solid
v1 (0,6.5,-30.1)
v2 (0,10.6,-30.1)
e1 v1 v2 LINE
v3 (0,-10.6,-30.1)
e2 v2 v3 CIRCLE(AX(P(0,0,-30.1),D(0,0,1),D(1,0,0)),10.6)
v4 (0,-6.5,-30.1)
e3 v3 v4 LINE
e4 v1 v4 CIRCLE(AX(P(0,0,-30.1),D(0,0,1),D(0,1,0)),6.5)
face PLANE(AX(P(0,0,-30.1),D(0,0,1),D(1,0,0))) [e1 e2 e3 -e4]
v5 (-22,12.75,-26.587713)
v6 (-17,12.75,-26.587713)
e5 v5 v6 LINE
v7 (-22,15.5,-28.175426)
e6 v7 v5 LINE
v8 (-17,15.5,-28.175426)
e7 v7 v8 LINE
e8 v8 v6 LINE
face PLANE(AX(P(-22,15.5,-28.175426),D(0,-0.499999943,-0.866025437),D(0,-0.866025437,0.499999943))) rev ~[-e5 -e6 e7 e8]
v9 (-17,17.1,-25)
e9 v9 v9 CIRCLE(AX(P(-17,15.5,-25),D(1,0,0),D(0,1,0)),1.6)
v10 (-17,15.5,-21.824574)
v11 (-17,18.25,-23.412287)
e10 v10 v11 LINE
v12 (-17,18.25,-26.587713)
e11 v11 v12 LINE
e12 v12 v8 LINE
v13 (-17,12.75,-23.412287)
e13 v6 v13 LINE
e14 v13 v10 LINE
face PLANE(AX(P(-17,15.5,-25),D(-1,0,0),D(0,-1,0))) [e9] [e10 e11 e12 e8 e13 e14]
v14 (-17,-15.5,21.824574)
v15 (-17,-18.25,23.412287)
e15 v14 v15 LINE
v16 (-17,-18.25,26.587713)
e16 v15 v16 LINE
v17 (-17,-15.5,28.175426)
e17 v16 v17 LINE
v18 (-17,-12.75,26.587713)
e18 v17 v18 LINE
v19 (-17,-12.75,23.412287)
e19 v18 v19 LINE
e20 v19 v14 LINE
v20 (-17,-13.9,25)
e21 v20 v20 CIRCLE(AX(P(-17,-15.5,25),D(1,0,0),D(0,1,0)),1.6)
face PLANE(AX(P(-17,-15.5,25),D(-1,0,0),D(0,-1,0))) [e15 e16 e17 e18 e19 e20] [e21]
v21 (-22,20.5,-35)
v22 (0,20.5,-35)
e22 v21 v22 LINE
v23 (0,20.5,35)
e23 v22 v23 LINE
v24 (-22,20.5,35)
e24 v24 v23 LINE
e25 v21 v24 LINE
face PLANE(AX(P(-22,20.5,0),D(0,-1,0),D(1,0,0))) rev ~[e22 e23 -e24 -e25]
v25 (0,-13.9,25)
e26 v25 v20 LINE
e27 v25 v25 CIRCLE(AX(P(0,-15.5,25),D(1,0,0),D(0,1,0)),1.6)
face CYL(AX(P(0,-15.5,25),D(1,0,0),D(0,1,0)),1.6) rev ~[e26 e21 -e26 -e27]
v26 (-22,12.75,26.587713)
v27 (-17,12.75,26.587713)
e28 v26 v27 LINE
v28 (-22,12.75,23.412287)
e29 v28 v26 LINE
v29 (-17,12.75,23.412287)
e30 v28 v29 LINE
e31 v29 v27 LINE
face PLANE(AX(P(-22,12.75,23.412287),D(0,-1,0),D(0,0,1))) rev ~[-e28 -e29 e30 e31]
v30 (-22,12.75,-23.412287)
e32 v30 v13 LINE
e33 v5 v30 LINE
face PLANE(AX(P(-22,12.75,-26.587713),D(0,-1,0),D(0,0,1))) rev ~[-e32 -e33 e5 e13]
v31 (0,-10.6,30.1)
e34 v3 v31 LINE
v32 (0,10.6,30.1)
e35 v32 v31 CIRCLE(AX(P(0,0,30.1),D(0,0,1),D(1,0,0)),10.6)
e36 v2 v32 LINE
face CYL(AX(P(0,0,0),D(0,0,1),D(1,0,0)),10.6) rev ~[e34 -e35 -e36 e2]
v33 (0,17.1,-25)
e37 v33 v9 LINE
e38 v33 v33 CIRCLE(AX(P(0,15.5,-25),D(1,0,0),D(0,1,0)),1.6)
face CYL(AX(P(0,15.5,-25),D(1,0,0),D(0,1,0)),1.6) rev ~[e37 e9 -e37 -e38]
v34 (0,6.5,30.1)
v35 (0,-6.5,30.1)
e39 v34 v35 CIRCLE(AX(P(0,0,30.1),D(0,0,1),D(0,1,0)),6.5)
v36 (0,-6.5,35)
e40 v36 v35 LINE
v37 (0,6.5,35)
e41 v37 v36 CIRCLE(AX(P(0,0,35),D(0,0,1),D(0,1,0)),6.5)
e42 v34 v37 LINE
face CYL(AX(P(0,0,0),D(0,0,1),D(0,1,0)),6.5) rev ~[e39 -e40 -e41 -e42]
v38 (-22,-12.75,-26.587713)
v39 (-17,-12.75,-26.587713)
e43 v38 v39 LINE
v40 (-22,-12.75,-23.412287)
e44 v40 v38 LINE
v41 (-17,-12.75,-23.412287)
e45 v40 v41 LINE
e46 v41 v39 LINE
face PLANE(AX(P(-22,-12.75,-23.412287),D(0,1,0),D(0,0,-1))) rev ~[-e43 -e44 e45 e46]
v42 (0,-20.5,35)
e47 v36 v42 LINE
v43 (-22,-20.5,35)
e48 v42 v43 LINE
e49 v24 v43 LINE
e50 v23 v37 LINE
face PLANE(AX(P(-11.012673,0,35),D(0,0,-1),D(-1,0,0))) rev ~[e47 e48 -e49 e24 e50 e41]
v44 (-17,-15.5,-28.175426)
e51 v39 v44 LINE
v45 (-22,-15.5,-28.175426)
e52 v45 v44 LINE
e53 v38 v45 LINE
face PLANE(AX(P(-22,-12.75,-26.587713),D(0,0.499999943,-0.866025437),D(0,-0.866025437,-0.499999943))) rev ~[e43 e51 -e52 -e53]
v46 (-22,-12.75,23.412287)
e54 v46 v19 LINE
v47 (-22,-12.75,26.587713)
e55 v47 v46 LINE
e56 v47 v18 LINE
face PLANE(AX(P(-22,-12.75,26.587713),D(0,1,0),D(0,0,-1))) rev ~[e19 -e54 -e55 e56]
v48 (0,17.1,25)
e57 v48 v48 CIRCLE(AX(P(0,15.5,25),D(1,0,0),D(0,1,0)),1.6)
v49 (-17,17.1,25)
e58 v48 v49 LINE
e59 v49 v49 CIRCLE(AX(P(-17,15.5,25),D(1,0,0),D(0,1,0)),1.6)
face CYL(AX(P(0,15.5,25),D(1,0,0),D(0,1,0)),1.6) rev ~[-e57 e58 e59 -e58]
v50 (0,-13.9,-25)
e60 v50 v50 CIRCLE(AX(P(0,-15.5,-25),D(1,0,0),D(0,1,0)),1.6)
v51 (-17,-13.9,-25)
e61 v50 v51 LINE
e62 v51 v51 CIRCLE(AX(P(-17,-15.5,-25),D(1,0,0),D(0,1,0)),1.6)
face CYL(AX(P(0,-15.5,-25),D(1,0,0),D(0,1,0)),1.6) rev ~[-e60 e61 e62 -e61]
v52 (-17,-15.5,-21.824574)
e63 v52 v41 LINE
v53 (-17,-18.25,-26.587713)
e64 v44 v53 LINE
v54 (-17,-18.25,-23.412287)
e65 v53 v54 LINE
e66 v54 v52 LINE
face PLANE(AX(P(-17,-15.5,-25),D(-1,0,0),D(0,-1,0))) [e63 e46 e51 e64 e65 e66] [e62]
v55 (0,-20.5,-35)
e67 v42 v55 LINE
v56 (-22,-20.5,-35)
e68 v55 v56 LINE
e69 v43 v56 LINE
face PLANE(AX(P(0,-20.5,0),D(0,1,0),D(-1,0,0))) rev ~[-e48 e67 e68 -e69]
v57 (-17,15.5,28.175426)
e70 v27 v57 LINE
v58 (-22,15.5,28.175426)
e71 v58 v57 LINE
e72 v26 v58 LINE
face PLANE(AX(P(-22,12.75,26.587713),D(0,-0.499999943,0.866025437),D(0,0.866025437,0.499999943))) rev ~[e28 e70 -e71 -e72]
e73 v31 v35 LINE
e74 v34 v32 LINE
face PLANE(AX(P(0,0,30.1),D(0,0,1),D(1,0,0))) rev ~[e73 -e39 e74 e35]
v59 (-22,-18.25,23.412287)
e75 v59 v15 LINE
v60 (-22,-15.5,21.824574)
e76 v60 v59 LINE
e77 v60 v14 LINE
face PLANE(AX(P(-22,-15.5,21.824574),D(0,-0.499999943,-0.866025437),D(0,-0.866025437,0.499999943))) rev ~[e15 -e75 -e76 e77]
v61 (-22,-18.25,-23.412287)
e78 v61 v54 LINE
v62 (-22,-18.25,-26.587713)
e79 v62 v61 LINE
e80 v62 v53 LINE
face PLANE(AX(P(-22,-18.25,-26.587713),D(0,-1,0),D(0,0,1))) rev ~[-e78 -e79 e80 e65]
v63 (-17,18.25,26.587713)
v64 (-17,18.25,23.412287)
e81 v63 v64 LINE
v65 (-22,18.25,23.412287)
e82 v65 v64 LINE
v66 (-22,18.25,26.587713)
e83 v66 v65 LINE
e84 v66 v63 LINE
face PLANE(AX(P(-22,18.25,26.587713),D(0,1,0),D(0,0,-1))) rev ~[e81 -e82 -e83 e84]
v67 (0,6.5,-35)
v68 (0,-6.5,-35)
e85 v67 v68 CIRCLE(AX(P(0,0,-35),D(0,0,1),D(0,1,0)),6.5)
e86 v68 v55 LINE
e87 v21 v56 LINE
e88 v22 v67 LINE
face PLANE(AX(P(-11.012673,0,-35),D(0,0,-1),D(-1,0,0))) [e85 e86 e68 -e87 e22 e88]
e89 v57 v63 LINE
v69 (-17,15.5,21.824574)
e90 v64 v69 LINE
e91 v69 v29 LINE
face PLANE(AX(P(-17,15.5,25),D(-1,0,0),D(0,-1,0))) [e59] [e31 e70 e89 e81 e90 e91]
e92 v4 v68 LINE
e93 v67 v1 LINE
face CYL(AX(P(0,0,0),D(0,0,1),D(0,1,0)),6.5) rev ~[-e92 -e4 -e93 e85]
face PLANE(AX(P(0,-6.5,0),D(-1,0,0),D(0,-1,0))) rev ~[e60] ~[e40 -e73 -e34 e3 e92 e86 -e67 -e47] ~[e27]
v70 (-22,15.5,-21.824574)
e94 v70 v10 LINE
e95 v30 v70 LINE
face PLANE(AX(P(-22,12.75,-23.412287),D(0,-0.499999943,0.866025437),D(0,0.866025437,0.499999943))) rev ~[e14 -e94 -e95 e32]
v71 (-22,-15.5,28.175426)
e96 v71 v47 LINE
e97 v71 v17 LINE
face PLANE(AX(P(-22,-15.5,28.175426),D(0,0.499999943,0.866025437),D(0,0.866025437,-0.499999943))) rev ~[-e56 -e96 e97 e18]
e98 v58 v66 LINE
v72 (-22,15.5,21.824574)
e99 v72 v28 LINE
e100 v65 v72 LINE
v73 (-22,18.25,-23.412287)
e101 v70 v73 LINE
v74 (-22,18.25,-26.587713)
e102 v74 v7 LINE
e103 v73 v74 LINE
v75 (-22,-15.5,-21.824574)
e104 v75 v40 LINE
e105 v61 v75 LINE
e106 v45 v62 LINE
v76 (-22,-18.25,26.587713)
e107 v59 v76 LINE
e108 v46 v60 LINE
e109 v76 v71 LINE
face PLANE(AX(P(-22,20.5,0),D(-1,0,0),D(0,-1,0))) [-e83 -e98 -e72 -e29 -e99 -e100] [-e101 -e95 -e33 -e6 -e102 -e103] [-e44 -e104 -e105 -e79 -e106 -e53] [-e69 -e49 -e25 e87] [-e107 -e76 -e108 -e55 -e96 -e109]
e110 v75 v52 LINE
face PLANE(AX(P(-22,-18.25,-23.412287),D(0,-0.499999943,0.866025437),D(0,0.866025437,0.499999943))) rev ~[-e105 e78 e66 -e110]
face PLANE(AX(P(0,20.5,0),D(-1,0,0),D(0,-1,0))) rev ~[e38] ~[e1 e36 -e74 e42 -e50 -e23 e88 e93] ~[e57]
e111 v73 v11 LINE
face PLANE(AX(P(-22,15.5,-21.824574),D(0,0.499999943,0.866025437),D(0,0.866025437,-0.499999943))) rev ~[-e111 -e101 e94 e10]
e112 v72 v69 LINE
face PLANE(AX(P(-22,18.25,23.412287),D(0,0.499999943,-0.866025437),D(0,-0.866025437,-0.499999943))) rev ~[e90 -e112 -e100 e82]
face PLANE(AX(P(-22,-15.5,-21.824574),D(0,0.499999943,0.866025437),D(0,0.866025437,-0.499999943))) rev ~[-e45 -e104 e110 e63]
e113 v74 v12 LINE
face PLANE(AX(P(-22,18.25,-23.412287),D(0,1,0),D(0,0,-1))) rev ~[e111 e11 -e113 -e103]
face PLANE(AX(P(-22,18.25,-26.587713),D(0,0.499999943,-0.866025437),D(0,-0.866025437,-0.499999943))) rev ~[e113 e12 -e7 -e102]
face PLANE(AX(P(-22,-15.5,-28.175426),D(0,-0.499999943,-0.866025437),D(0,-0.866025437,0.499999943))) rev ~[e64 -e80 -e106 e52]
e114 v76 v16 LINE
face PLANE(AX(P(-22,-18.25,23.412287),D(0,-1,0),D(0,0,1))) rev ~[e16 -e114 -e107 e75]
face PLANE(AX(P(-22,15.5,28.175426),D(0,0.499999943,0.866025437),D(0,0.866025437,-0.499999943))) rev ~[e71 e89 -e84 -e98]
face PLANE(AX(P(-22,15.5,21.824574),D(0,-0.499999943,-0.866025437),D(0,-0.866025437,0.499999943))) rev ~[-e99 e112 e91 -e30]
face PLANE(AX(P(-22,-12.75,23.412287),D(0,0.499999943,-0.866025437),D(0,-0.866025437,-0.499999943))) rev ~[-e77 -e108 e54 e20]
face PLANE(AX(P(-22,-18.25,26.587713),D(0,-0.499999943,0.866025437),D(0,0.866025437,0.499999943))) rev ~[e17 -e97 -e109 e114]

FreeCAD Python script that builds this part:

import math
import FreeCAD as App
import Part
import Sketcher
from FreeCAD import Vector
Q = App.Units.Quantity

doc = App.newDocument("Part")
params = doc.addObject("Spreadsheet::Sheet", "Params")
for row, (alias, value) in enumerate([
    ("sketch1_radius", "6.5 mm"),
    ("sketch1_width", "22 mm"),
    ("sketch1_height", "14 mm"),
    ("pad1_length", "70 mm"),
    ("sketch2_diameter", "21.2 mm"),
    ("pocket1_length", "60.2 mm"),
    ("sketch3_diameter", "3.2 mm"),
    ("pocket3_length", "5 mm"),
], start=1):
    params.set(f"A{row}", alias)
    params.set(f"B{row}", "=" + value)
    params.setAlias(f"B{row}", alias)

body = doc.addObject("PartDesign::Body", "Body")

# Sketch on XY plane
sketch1 = body.newObject("Sketcher::SketchObject", "Sketch")
sketch1.AttachmentSupport = (doc.getObject("XY_Plane"), [""])
sketch1.MapMode = "FlatFace"
sketch1.addGeometry([
    Part.ArcOfCircle(Part.Circle(Vector(0, 0, 0), Vector(0, 0, 1), 6), math.radians(90), math.radians(270)),  # 0
    Part.LineSegment(Vector(0, 6, 0), Vector(0, 20, 0)),  # 1
    Part.LineSegment(Vector(0, 20, 0), Vector(-22, 20, 0)),  # 2
    Part.LineSegment(Vector(-22, 20, 0), Vector(-22, -20, 0)),  # 3
    Part.LineSegment(Vector(-22, -20, 0), Vector(0, -20, 0)),  # 4
    Part.LineSegment(Vector(0, -20, 0), Vector(0, -6, 0)),  # 5
], False)
sketch1.addConstraint([
    Sketcher.Constraint("Coincident", 0, 1, 1, 1),
    Sketcher.Constraint("Coincident", 1, 2, 2, 1),
    Sketcher.Constraint("Coincident", 2, 2, 3, 1),
    Sketcher.Constraint("Coincident", 3, 2, 4, 1),
    Sketcher.Constraint("Coincident", 4, 2, 5, 1),
    Sketcher.Constraint("Coincident", 5, 2, 0, 2),
    Sketcher.Constraint("Vertical", 1),
    Sketcher.Constraint("Horizontal", 2),
    Sketcher.Constraint("Vertical", 3),
    Sketcher.Constraint("Horizontal", 4),
    Sketcher.Constraint("Vertical", 5),
    Sketcher.Constraint("Coincident", 0, 3, -1, 1),
    Sketcher.Constraint("Symmetric", 1, 2, 4, 2, -1, 1),
    Sketcher.Constraint("PointOnObject", 0, 1, -2),
    Sketcher.Constraint("Radius", 0, Q("6.5 mm")),
    Sketcher.Constraint("DistanceX", 2, 2, 2, 1, Q("22 mm")),
    Sketcher.Constraint("DistanceY", 1, 1, 1, 2, Q("14 mm")),
])
sketch1.setExpression("Constraints[14]", "Params.sketch1_radius")
sketch1.setExpression("Constraints[15]", "Params.sketch1_width")
sketch1.setExpression("Constraints[16]", "Params.sketch1_height")
pad1 = body.newObject("PartDesign::Pad", "Pad")
pad1.Profile = sketch1
pad1.setExpression("Length", "Params.pad1_length")
pad1.Midplane = True

# Sketch on XY plane
sketch2 = body.newObject("Sketcher::SketchObject", "Sketch001")
sketch2.AttachmentSupport = (doc.getObject("XY_Plane"), [""])
sketch2.MapMode = "FlatFace"
sketch2.addGeometry(Part.Circle(Vector(0, 0, 0), Vector(0, 0, 1), 11), False)
sketch2.addConstraint([
    Sketcher.Constraint("Coincident", 0, 3, -1, 1),
    Sketcher.Constraint("Diameter", 0, Q("21.2 mm")),
])
sketch2.setExpression("Constraints[1]", "Params.sketch2_diameter")
pocket1 = body.newObject("PartDesign::Pocket", "Pocket")
pocket1.Profile = sketch2
pocket1.setExpression("Length", "Params.pocket1_length")
pocket1.Midplane = True

# Sketch on YZ plane
sketch3 = body.newObject("Sketcher::SketchObject", "Sketch002")
sketch3.AttachmentSupport = (doc.getObject("YZ_Plane"), [""])
sketch3.MapMode = "FlatFace"
sketch3.addGeometry([
    Part.Circle(Vector(-15.5, 25, 0), Vector(0, 0, 1), 1.6),
    Part.Circle(Vector(-15.5, -25, 0), Vector(0, 0, 1), 1.6),
    Part.Circle(Vector(15.5, 25, 0), Vector(0, 0, 1), 1.6),
    Part.Circle(Vector(15.5, -25, 0), Vector(0, 0, 1), 1.6),
], False)
sketch3.addConstraint([
    Sketcher.Constraint("Equal", 0, 1),
    Sketcher.Constraint("Equal", 1, 2),
    Sketcher.Constraint("Equal", 2, 3),
    Sketcher.Constraint("Symmetric", 1, 3, 2, 3, -1, 1),
    Sketcher.Constraint("Symmetric", 0, 3, 3, 3, -1, 1),
    Sketcher.Constraint("Symmetric", 0, 3, 2, 3, -2),
    Sketcher.Constraint("Diameter", 0, Q("3.2 mm")),
    Sketcher.Constraint("DistanceY", -1, 1, 0, 3, Q("25 mm")),
    Sketcher.Constraint("DistanceX", 0, 3, 2, 3, Q("31 mm")),
])
sketch3.setExpression("Constraints[6]", "Params.sketch3_diameter")
pocket2 = body.newObject("PartDesign::Pocket", "Pocket001")
pocket2.Profile = sketch3
pocket2.Type = "ThroughAll"

# Sketch on YZ plane
sketch4 = body.newObject("Sketcher::SketchObject", "Sketch003")
sketch4.AttachmentSupport = (doc.getObject("YZ_Plane"), [""])
sketch4.MapMode = "FlatFace"
sketch4.AttachmentOffset = App.Placement(Vector(0, 0, -22), App.Rotation())
sketch4.addGeometry([
    Part.LineSegment(Vector(12.8, 23.4, 0), Vector(12.8, 26.6, 0)),  # 0
    Part.LineSegment(Vector(12.8, 26.6, 0), Vector(15.5, 28.2, 0)),  # 1
    Part.LineSegment(Vector(15.5, 28.2, 0), Vector(18.2, 26.6, 0)),  # 2
    Part.LineSegment(Vector(18.2, 26.6, 0), Vector(18.2, 23.4, 0)),  # 3
    Part.LineSegment(Vector(18.2, 23.4, 0), Vector(15.5, 21.8, 0)),  # 4
    Part.LineSegment(Vector(15.5, 21.8, 0), Vector(12.8, 23.4, 0)),  # 5
    Part.LineSegment(Vector(-12.8, 26.6, 0), Vector(-12.8, 23.4, 0)),  # 6
    Part.LineSegment(Vector(-12.8, 23.4, 0), Vector(-15.5, 21.8, 0)),  # 7
    Part.LineSegment(Vector(-15.5, 21.8, 0), Vector(-18.2, 23.4, 0)),  # 8
    Part.LineSegment(Vector(-18.2, 23.4, 0), Vector(-18.2, 26.6, 0)),  # 9
    Part.LineSegment(Vector(-18.2, 26.6, 0), Vector(-15.5, 28.2, 0)),  # 10
    Part.LineSegment(Vector(-15.5, 28.2, 0), Vector(-12.8, 26.6, 0)),  # 11
    Part.LineSegment(Vector(18.2, -23.4, 0), Vector(18.2, -26.6, 0)),  # 12
    Part.LineSegment(Vector(18.2, -26.6, 0), Vector(15.5, -28.2, 0)),  # 13
    Part.LineSegment(Vector(15.5, -28.2, 0), Vector(12.8, -26.6, 0)),  # 14
    Part.LineSegment(Vector(12.8, -26.6, 0), Vector(12.8, -23.4, 0)),  # 15
    Part.LineSegment(Vector(12.8, -23.4, 0), Vector(15.5, -21.8, 0)),  # 16
    Part.LineSegment(Vector(15.5, -21.8, 0), Vector(18.2, -23.4, 0)),  # 17
    Part.LineSegment(Vector(-12.8, -23.4, 0), Vector(-12.8, -26.6, 0)),  # 18
    Part.LineSegment(Vector(-12.8, -26.6, 0), Vector(-15.5, -28.2, 0)),  # 19
    Part.LineSegment(Vector(-15.5, -28.2, 0), Vector(-18.2, -26.6, 0)),  # 20
    Part.LineSegment(Vector(-18.2, -26.6, 0), Vector(-18.2, -23.4, 0)),  # 21
    Part.LineSegment(Vector(-18.2, -23.4, 0), Vector(-15.5, -21.8, 0)),  # 22
    Part.LineSegment(Vector(-15.5, -21.8, 0), Vector(-12.8, -23.4, 0)),  # 23
], False)
sketch4.addConstraint([
    Sketcher.Constraint("Coincident", 0, 2, 1, 1),
    Sketcher.Constraint("Coincident", 1, 2, 2, 1),
    Sketcher.Constraint("Coincident", 2, 2, 3, 1),
    Sketcher.Constraint("Coincident", 3, 2, 4, 1),
    Sketcher.Constraint("Coincident", 4, 2, 5, 1),
    Sketcher.Constraint("Coincident", 5, 2, 0, 1),
    Sketcher.Constraint("Coincident", 6, 2, 7, 1),
    Sketcher.Constraint("Coincident", 7, 2, 8, 1),
    Sketcher.Constraint("Coincident", 8, 2, 9, 1),
    Sketcher.Constraint("Coincident", 9, 2, 10, 1),
    Sketcher.Constraint("Coincident", 10, 2, 11, 1),
    Sketcher.Constraint("Coincident", 11, 2, 6, 1),
    Sketcher.Constraint("Coincident", 12, 2, 13, 1),
    Sketcher.Constraint("Coincident", 13, 2, 14, 1),
    Sketcher.Constraint("Coincident", 14, 2, 15, 1),
    Sketcher.Constraint("Coincident", 15, 2, 16, 1),
    Sketcher.Constraint("Coincident", 16, 2, 17, 1),
    Sketcher.Constraint("Coincident", 17, 2, 12, 1),
    Sketcher.Constraint("Coincident", 18, 2, 19, 1),
    Sketcher.Constraint("Coincident", 19, 2, 20, 1),
    Sketcher.Constraint("Coincident", 20, 2, 21, 1),
    Sketcher.Constraint("Coincident", 21, 2, 22, 1),
    Sketcher.Constraint("Coincident", 22, 2, 23, 1),
    Sketcher.Constraint("Coincident", 23, 2, 18, 1),
    Sketcher.Constraint("Vertical", 0),
    Sketcher.Constraint("Vertical", 3),
    Sketcher.Constraint("Vertical", 6),
    Sketcher.Constraint("Vertical", 9),
    Sketcher.Constraint("Vertical", 12),
    Sketcher.Constraint("Vertical", 15),
    Sketcher.Constraint("Vertical", 18),
    Sketcher.Constraint("Vertical", 21),
    Sketcher.Constraint("Symmetric", 9, 2, 12, 2, -1, 1),
    Sketcher.Constraint("Symmetric", 10, 2, 13, 2, -1, 1),
    Sketcher.Constraint("Symmetric", 11, 2, 14, 2, -1, 1),
    Sketcher.Constraint("Symmetric", 7, 2, 16, 2, -1, 1),
    Sketcher.Constraint("Symmetric", 0, 2, 18, 2, -1, 1),
    Sketcher.Constraint("Symmetric", 1, 2, 19, 2, -1, 1),
    Sketcher.Constraint("Symmetric", 2, 2, 20, 2, -1, 1),
    Sketcher.Constraint("Symmetric", 4, 2, 22, 2, -1, 1),
    Sketcher.Constraint("Symmetric", 5, 2, 6, 2, -2),
    Sketcher.Constraint("Symmetric", 4, 2, 7, 2, -2),
    Sketcher.Constraint("Symmetric", 3, 2, 8, 2, -2),
    Sketcher.Constraint("Symmetric", 1, 2, 10, 2, -2),
    Sketcher.Constraint("Parallel", 1, 4),
    Sketcher.Constraint("Parallel", 2, 5),
    Sketcher.Constraint("Parallel", 4, 7),
    Sketcher.Constraint("Parallel", 7, 10),
    Sketcher.Constraint("Parallel", 8, 11),
    Sketcher.Constraint("Parallel", 13, 16),
    Sketcher.Constraint("Parallel", 14, 17),
    Sketcher.Constraint("Parallel", 19, 22),
    Sketcher.Constraint("Parallel", 20, 23),
    Sketcher.Constraint("Horizontal", 0, 2, 2, 2),
    Sketcher.Constraint("Horizontal", 3, 2, 5, 2),
    Sketcher.Constraint("Angle", 1, Q("29.999996 deg")),
    Sketcher.Constraint("DistanceX", 6, 2, 3, 2, Q("31 mm")),
    Sketcher.Constraint("DistanceY", 12, 2, 3, 2, Q("50 mm")),
    Sketcher.Constraint("DistanceX", 0, 2, 2, 2, Q("5.5 mm")),
    Sketcher.Constraint("DistanceY", 0, 1, 0, 2, Q("3.175426 mm")),
])
pocket3 = body.newObject("PartDesign::Pocket", "Pocket002")
pocket3.Profile = sketch4
pocket3.setExpression("Length", "Params.pocket3_length")
pocket3.Reversed = True

doc.recompute()
